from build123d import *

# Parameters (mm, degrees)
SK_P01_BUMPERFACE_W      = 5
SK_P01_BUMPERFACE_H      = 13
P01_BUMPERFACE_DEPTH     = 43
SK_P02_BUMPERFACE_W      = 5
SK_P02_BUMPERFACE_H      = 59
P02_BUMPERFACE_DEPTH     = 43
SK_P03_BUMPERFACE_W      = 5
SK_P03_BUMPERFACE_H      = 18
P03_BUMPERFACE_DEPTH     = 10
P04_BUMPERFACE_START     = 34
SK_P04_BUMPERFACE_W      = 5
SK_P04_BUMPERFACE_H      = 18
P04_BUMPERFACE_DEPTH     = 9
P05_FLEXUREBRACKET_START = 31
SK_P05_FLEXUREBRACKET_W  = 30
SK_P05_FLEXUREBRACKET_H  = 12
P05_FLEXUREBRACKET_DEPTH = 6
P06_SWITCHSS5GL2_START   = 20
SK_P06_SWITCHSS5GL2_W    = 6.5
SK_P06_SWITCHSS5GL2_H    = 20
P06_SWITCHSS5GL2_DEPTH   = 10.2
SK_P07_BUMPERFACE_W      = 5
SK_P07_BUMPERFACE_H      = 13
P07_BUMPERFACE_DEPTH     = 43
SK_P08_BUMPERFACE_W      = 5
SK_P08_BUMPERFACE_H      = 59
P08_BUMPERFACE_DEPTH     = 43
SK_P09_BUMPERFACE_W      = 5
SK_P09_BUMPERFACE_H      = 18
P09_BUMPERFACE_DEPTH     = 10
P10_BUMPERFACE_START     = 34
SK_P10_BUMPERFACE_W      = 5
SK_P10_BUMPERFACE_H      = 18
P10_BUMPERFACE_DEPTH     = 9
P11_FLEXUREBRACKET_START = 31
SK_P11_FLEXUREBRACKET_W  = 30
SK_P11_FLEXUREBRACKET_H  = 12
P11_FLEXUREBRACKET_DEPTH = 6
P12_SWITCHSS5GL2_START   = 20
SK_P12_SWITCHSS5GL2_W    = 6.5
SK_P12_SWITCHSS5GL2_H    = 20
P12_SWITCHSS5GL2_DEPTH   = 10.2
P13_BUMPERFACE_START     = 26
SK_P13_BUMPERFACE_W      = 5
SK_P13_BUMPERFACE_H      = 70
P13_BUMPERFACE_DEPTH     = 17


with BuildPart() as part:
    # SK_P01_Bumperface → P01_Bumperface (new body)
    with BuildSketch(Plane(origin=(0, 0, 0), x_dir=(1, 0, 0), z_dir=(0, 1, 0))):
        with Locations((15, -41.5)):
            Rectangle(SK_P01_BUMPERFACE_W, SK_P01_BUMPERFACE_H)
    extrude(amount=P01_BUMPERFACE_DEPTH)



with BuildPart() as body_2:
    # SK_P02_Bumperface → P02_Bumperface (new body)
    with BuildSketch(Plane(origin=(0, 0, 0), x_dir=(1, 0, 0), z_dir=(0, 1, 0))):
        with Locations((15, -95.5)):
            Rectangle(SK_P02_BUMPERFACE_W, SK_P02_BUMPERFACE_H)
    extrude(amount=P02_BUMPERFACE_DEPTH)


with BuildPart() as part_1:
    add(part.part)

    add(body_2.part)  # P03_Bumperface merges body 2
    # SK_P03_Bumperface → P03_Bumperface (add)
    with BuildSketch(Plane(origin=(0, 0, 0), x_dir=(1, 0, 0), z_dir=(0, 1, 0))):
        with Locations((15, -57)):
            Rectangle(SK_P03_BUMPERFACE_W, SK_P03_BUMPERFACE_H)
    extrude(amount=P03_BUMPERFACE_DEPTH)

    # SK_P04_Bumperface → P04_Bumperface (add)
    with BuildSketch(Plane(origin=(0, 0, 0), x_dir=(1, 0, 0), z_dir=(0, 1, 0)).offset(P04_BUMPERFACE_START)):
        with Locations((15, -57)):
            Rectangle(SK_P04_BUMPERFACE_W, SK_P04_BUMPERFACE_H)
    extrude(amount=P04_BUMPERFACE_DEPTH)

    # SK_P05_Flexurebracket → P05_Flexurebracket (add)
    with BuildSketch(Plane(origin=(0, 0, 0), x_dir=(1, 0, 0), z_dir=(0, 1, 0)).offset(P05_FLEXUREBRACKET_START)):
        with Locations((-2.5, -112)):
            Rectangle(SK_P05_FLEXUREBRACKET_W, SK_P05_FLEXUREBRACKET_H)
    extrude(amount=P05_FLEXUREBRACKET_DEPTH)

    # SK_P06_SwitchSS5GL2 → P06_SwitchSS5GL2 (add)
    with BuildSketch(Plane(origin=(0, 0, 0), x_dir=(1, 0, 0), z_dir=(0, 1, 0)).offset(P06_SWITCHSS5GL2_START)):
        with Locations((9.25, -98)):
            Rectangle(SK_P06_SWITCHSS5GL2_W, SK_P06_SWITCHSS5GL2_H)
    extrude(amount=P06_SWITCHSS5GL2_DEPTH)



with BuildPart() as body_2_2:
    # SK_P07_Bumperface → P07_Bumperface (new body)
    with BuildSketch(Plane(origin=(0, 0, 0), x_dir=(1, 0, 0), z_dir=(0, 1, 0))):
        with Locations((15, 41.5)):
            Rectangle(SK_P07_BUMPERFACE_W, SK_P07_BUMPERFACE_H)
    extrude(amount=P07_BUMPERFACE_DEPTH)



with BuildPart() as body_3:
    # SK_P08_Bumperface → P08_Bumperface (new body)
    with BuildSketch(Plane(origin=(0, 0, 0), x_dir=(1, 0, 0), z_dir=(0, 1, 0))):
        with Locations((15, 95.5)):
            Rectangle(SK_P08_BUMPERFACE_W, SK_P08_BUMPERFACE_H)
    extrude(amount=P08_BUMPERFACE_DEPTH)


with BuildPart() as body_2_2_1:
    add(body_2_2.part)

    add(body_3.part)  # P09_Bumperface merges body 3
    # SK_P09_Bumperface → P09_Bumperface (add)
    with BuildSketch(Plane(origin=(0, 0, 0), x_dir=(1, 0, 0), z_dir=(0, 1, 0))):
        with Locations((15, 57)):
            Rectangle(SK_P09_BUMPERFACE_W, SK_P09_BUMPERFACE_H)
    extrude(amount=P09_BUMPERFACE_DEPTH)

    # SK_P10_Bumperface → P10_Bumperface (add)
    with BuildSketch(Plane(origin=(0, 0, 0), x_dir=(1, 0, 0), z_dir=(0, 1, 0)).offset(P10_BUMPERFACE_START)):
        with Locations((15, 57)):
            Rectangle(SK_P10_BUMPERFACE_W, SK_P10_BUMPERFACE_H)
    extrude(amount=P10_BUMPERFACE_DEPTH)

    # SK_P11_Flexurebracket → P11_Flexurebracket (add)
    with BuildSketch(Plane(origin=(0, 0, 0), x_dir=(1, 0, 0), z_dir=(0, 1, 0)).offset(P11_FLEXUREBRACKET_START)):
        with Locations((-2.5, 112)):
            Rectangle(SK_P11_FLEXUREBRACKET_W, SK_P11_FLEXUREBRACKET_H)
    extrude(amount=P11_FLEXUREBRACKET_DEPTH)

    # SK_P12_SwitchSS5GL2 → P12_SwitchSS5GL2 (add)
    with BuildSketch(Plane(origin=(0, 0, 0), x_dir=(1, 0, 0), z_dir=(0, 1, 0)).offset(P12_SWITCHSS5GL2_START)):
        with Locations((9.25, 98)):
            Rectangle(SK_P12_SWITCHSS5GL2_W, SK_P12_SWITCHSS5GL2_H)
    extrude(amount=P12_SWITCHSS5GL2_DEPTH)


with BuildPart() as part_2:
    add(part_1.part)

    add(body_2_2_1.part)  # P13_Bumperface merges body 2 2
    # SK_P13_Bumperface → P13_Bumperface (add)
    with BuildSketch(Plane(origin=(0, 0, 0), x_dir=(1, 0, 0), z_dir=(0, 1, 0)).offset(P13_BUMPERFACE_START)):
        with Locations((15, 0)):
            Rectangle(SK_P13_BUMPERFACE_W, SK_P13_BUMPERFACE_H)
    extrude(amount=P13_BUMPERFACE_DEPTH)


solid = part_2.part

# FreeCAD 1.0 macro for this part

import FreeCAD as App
import Part
import Sketcher
from FreeCAD import Vector
Q = App.Units.Quantity

doc = App.newDocument("Part")
body = doc.addObject("PartDesign::Body", "Body")

# Sketch on XZ plane
sketch1 = doc.addObject("Sketcher::SketchObject", "Sketch")
body.addObject(sketch1)
sketch1.AttachmentSupport = (doc.XZ_Plane, [""])
sketch1.MapMode = "FlatFace"
sketch1.addGeometry([
    Part.LineSegment(Vector(12, 35, 0), Vector(12, 48, 0)),
    Part.LineSegment(Vector(12, 48, 0), Vector(18, 48, 0)),
    Part.LineSegment(Vector(18, 48, 0), Vector(18, 35, 0)),
    Part.LineSegment(Vector(18, 35, 0), Vector(12, 35, 0)),
], False)
sketch1.addConstraint([
    Sketcher.Constraint("Coincident", 0, 2, 1, 1),
    Sketcher.Constraint("Coincident", 1, 2, 2, 1),
    Sketcher.Constraint("Coincident", 2, 2, 3, 1),
    Sketcher.Constraint("Coincident", 3, 2, 0, 1),
    Sketcher.Constraint("Vertical", 0),
    Sketcher.Constraint("Horizontal", 1),
    Sketcher.Constraint("Vertical", 2),
    Sketcher.Constraint("Horizontal", 3),
    Sketcher.Constraint("DistanceX", 1, 1, 1, 2, Q("5 mm")),
    Sketcher.Constraint("DistanceY", 0, 1, 0, 2, Q("13 mm")),
    Sketcher.Constraint("DistanceY", -1, 1, 0, 2, Q("48 mm")),
    Sketcher.Constraint("DistanceX", -1, 1, 0, 2, Q("12.5 mm")),
])
pad1 = doc.addObject("PartDesign::Pad", "Pad")
body.addObject(pad1)
pad1.Profile = sketch1
pad1.Length = 43
pad1.Reversed = True
body2 = doc.addObject("PartDesign::Body", "Body001")

# Sketch on XZ plane
sketch2 = doc.addObject("Sketcher::SketchObject", "Sketch001")
body2.addObject(sketch2)
sketch2.AttachmentSupport = (doc.getObject("XZ_Plane001"), [""])
sketch2.MapMode = "FlatFace"
sketch2.addGeometry([
    Part.LineSegment(Vector(12, 66, 0), Vector(12, 125, 0)),
    Part.LineSegment(Vector(12, 125, 0), Vector(18, 125, 0)),
    Part.LineSegment(Vector(18, 125, 0), Vector(18, 66, 0)),
    Part.LineSegment(Vector(18, 66, 0), Vector(12, 66, 0)),
], False)
sketch2.addConstraint([
    Sketcher.Constraint("Coincident", 0, 2, 1, 1),
    Sketcher.Constraint("Coincident", 1, 2, 2, 1),
    Sketcher.Constraint("Coincident", 2, 2, 3, 1),
    Sketcher.Constraint("Coincident", 3, 2, 0, 1),
    Sketcher.Constraint("Vertical", 0),
    Sketcher.Constraint("Horizontal", 1),
    Sketcher.Constraint("Vertical", 2),
    Sketcher.Constraint("Horizontal", 3),
    Sketcher.Constraint("DistanceX", 1, 1, 1, 2, Q("5 mm")),
    Sketcher.Constraint("DistanceY", 0, 1, 0, 2, Q("59 mm")),
    Sketcher.Constraint("DistanceY", -1, 1, 0, 2, Q("125 mm")),
    Sketcher.Constraint("DistanceX", -1, 1, 0, 2, Q("12.5 mm")),
])
pad2 = doc.addObject("PartDesign::Pad", "Pad001")
body2.addObject(pad2)
pad2.Profile = sketch2
pad2.Length = 43
pad2.Reversed = True
body.AllowCompound = True
doc.recompute()

boolean = doc.addObject("PartDesign::Boolean", "Boolean")
body.addObject(boolean)
boolean.Type = "Fuse"
boolean.addObjects([body2])

# Sketch on XZ plane
sketch3 = doc.addObject("Sketcher::SketchObject", "Sketch002")
body.addObject(sketch3)
sketch3.AttachmentSupport = (doc.XZ_Plane, [""])
sketch3.MapMode = "FlatFace"
sketch3.addGeometry([
    Part.LineSegment(Vector(12, 48, 0), Vector(12, 66, 0)),
    Part.LineSegment(Vector(12, 66, 0), Vector(18, 66, 0)),
    Part.LineSegment(Vector(18, 66, 0), Vector(18, 48, 0)),
    Part.LineSegment(Vector(18, 48, 0), Vector(12, 48, 0)),
], False)
sketch3.addConstraint([
    Sketcher.Constraint("Coincident", 0, 2, 1, 1),
    Sketcher.Constraint("Coincident", 1, 2, 2, 1),
    Sketcher.Constraint("Coincident", 2, 2, 3, 1),
    Sketcher.Constraint("Coincident", 3, 2, 0, 1),
    Sketcher.Constraint("Vertical", 0),
    Sketcher.Constraint("Horizontal", 1),
    Sketcher.Constraint("Vertical", 2),
    Sketcher.Constraint("Horizontal", 3),
    Sketcher.Constraint("DistanceX", 1, 1, 1, 2, Q("5 mm")),
    Sketcher.Constraint("DistanceY", 0, 1, 0, 2, Q("18 mm")),
    Sketcher.Constraint("DistanceY", -1, 1, 0, 2, Q("66 mm")),
    Sketcher.Constraint("DistanceX", -1, 1, 0, 2, Q("12.5 mm")),
])
pad3 = doc.addObject("PartDesign::Pad", "Pad002")
body.addObject(pad3)
pad3.Profile = sketch3
pad3.Length = 10
pad3.Reversed = True

# Sketch on XZ plane
sketch4 = doc.addObject("Sketcher::SketchObject", "Sketch003")
body.addObject(sketch4)
sketch4.AttachmentSupport = (doc.XZ_Plane, [""])
sketch4.MapMode = "FlatFace"
sketch4.AttachmentOffset = App.Placement(Vector(0, 0, -34), App.Rotation())
sketch4.addGeometry([
    Part.LineSegment(Vector(12, 48, 0), Vector(12, 66, 0)),
    Part.LineSegment(Vector(12, 66, 0), Vector(18, 66, 0)),
    Part.LineSegment(Vector(18, 66, 0), Vector(18, 48, 0)),
    Part.LineSegment(Vector(18, 48, 0), Vector(12, 48, 0)),
], False)
sketch4.addConstraint([
    Sketcher.Constraint("Coincident", 0, 2, 1, 1),
    Sketcher.Constraint("Coincident", 1, 2, 2, 1),
    Sketcher.Constraint("Coincident", 2, 2, 3, 1),
    Sketcher.Constraint("Coincident", 3, 2, 0, 1),
    Sketcher.Constraint("Vertical", 0),
    Sketcher.Constraint("Horizontal", 1),
    Sketcher.Constraint("Vertical", 2),
    Sketcher.Constraint("Horizontal", 3),
    Sketcher.Constraint("DistanceX", 1, 1, 1, 2, Q("5 mm")),
    Sketcher.Constraint("DistanceY", 0, 1, 0, 2, Q("18 mm")),
    Sketcher.Constraint("DistanceY", -1, 1, 0, 2, Q("66 mm")),
    Sketcher.Constraint("DistanceX", -1, 1, 0, 2, Q("12.5 mm")),
])
pad4 = doc.addObject("PartDesign::Pad", "Pad003")
body.addObject(pad4)
pad4.Profile = sketch4
pad4.Length = 9
pad4.Reversed = True

# Sketch on XZ plane
sketch5 = doc.addObject("Sketcher::SketchObject", "Sketch004")
body.addObject(sketch5)
sketch5.AttachmentSupport = (doc.XZ_Plane, [""])
sketch5.MapMode = "FlatFace"
sketch5.AttachmentOffset = App.Placement(Vector(0, 0, -31), App.Rotation())
sketch5.addGeometry([
    Part.LineSegment(Vector(-18, 106, 0), Vector(-18, 118, 0)),
    Part.LineSegment(Vector(-18, 118, 0), Vector(12, 118, 0)),
    Part.LineSegment(Vector(12, 118, 0), Vector(12, 106, 0)),
    Part.LineSegment(Vector(12, 106, 0), Vector(-18, 106, 0)),
], False)
sketch5.addConstraint([
    Sketcher.Constraint("Coincident", 0, 2, 1, 1),
    Sketcher.Constraint("Coincident", 1, 2, 2, 1),
    Sketcher.Constraint("Coincident", 2, 2, 3, 1),
    Sketcher.Constraint("Coincident", 3, 2, 0, 1),
    Sketcher.Constraint("Vertical", 0),
    Sketcher.Constraint("Horizontal", 1),
    Sketcher.Constraint("Vertical", 2),
    Sketcher.Constraint("Horizontal", 3),
    Sketcher.Constraint("DistanceX", 1, 1, 1, 2, Q("30 mm")),
    Sketcher.Constraint("DistanceY", 0, 1, 0, 2, Q("12 mm")),
    Sketcher.Constraint("DistanceY", -1, 1, 0, 2, Q("118 mm")),
    Sketcher.Constraint("DistanceX", 0, 2, -1, 1, Q("17.5 mm")),
])
pad5 = doc.addObject("PartDesign::Pad", "Pad004")
body.addObject(pad5)
pad5.Profile = sketch5
pad5.Length = 6
pad5.Reversed = True

# Sketch on XZ plane
sketch6 = doc.addObject("Sketcher::SketchObject", "Sketch005")
body.addObject(sketch6)
sketch6.AttachmentSupport = (doc.XZ_Plane, [""])
sketch6.MapMode = "FlatFace"
sketch6.AttachmentOffset = App.Placement(Vector(0, 0, -20), App.Rotation())
sketch6.addGeometry([
    Part.LineSegment(Vector(6, 88, 0), Vector(6, 108, 0)),
    Part.LineSegment(Vector(6, 108, 0), Vector(12, 108, 0)),
    Part.LineSegment(Vector(12, 108, 0), Vector(12, 88, 0)),
    Part.LineSegment(Vector(12, 88, 0), Vector(6, 88, 0)),
], False)
sketch6.addConstraint([
    Sketcher.Constraint("Coincident", 0, 2, 1, 1),
    Sketcher.Constraint("Coincident", 1, 2, 2, 1),
    Sketcher.Constraint("Coincident", 2, 2, 3, 1),
    Sketcher.Constraint("Coincident", 3, 2, 0, 1),
    Sketcher.Constraint("Vertical", 0),
    Sketcher.Constraint("Horizontal", 1),
    Sketcher.Constraint("Vertical", 2),
    Sketcher.Constraint("Horizontal", 3),
    Sketcher.Constraint("DistanceY", 0, 1, 0, 2, Q("20 mm")),
    Sketcher.Constraint("DistanceX", 1, 1, 1, 2, Q("6.5 mm")),
    Sketcher.Constraint("DistanceX", -1, 1, 0, 2, Q("6 mm")),
    Sketcher.Constraint("DistanceY", -1, 1, 0, 2, Q("108 mm")),
])
pad6 = doc.addObject("PartDesign::Pad", "Pad005")
body.addObject(pad6)
pad6.Profile = sketch6
pad6.Length = 10.2
pad6.Reversed = True
body3 = doc.addObject("PartDesign::Body", "Body002")

# Sketch on XZ plane
sketch7 = doc.addObject("Sketcher::SketchObject", "Sketch006")
body3.addObject(sketch7)
sketch7.AttachmentSupport = (doc.getObject("XZ_Plane002"), [""])
sketch7.MapMode = "FlatFace"
sketch7.addGeometry([
    Part.LineSegment(Vector(12, -48, 0), Vector(12, -35, 0)),
    Part.LineSegment(Vector(12, -35, 0), Vector(18, -35, 0)),
    Part.LineSegment(Vector(18, -35, 0), Vector(18, -48, 0)),
    Part.LineSegment(Vector(18, -48, 0), Vector(12, -48, 0)),
], False)
sketch7.addConstraint([
    Sketcher.Constraint("Coincident", 0, 2, 1, 1),
    Sketcher.Constraint("Coincident", 1, 2, 2, 1),
    Sketcher.Constraint("Coincident", 2, 2, 3, 1),
    Sketcher.Constraint("Coincident", 3, 2, 0, 1),
    Sketcher.Constraint("Vertical", 0),
    Sketcher.Constraint("Horizontal", 1),
    Sketcher.Constraint("Vertical", 2),
    Sketcher.Constraint("Horizontal", 3),
    Sketcher.Constraint("DistanceX", 1, 1, 1, 2, Q("5 mm")),
    Sketcher.Constraint("DistanceY", 0, 1, 0, 2, Q("13 mm")),
    Sketcher.Constraint("DistanceY", 0, 2, -1, 1, Q("35 mm")),
    Sketcher.Constraint("DistanceX", -1, 1, 0, 2, Q("12.5 mm")),
])
pad7 = doc.addObject("PartDesign::Pad", "Pad006")
body3.addObject(pad7)
pad7.Profile = sketch7
pad7.Length = 43
pad7.Reversed = True
body4 = doc.addObject("PartDesign::Body", "Body003")

# Sketch on XZ plane
sketch8 = doc.addObject("Sketcher::SketchObject", "Sketch007")
body4.addObject(sketch8)
sketch8.AttachmentSupport = (doc.getObject("XZ_Plane003"), [""])
sketch8.MapMode = "FlatFace"
sketch8.addGeometry([
    Part.LineSegment(Vector(12, -125, 0), Vector(12, -66, 0)),
    Part.LineSegment(Vector(12, -66, 0), Vector(18, -66, 0)),
    Part.LineSegment(Vector(18, -66, 0), Vector(18, -125, 0)),
    Part.LineSegment(Vector(18, -125, 0), Vector(12, -125, 0)),
], False)
sketch8.addConstraint([
    Sketcher.Constraint("Coincident", 0, 2, 1, 1),
    Sketcher.Constraint("Coincident", 1, 2, 2, 1),
    Sketcher.Constraint("Coincident", 2, 2, 3, 1),
    Sketcher.Constraint("Coincident", 3, 2, 0, 1),
    Sketcher.Constraint("Vertical", 0),
    Sketcher.Constraint("Horizontal", 1),
    Sketcher.Constraint("Vertical", 2),
    Sketcher.Constraint("Horizontal", 3),
    Sketcher.Constraint("DistanceX", 1, 1, 1, 2, Q("5 mm")),
    Sketcher.Constraint("DistanceY", 0, 1, 0, 2, Q("59 mm")),
    Sketcher.Constraint("DistanceY", 0, 2, -1, 1, Q("66 mm")),
    Sketcher.Constraint("DistanceX", -1, 1, 0, 2, Q("12.5 mm")),
])
pad8 = doc.addObject("PartDesign::Pad", "Pad007")
body4.addObject(pad8)
pad8.Profile = sketch8
pad8.Length = 43
pad8.Reversed = True
body3.AllowCompound = True
doc.recompute()

boolean2 = doc.addObject("PartDesign::Boolean", "Boolean001")
body3.addObject(boolean2)
boolean2.Type = "Fuse"
boolean2.addObjects([body4])

# Sketch on XZ plane
sketch9 = doc.addObject("Sketcher::SketchObject", "Sketch008")
body3.addObject(sketch9)
sketch9.AttachmentSupport = (doc.getObject("XZ_Plane002"), [""])
sketch9.MapMode = "FlatFace"
sketch9.addGeometry([
    Part.LineSegment(Vector(12, -66, 0), Vector(12, -48, 0)),
    Part.LineSegment(Vector(12, -48, 0), Vector(18, -48, 0)),
    Part.LineSegment(Vector(18, -48, 0), Vector(18, -66, 0)),
    Part.LineSegment(Vector(18, -66, 0), Vector(12, -66, 0)),
], False)
sketch9.addConstraint([
    Sketcher.Constraint("Coincident", 0, 2, 1, 1),
    Sketcher.Constraint("Coincident", 1, 2, 2, 1),
    Sketcher.Constraint("Coincident", 2, 2, 3, 1),
    Sketcher.Constraint("Coincident", 3, 2, 0, 1),
    Sketcher.Constraint("Vertical", 0),
    Sketcher.Constraint("Horizontal", 1),
    Sketcher.Constraint("Vertical", 2),
    Sketcher.Constraint("Horizontal", 3),
    Sketcher.Constraint("DistanceX", 1, 1, 1, 2, Q("5 mm")),
    Sketcher.Constraint("DistanceY", 0, 1, 0, 2, Q("18 mm")),
    Sketcher.Constraint("DistanceY", 0, 2, -1, 1, Q("48 mm")),
    Sketcher.Constraint("DistanceX", -1, 1, 0, 2, Q("12.5 mm")),
])
pad9 = doc.addObject("PartDesign::Pad", "Pad008")
body3.addObject(pad9)
pad9.Profile = sketch9
pad9.Length = 10
pad9.Reversed = True

# Sketch on XZ plane
sketch10 = doc.addObject("Sketcher::SketchObject", "Sketch009")
body3.addObject(sketch10)
sketch10.AttachmentSupport = (doc.getObject("XZ_Plane002"), [""])
sketch10.MapMode = "FlatFace"
sketch10.AttachmentOffset = App.Placement(Vector(0, 0, -34), App.Rotation())
sketch10.addGeometry([
    Part.LineSegment(Vector(12, -66, 0), Vector(12, -48, 0)),
    Part.LineSegment(Vector(12, -48, 0), Vector(18, -48, 0)),
    Part.LineSegment(Vector(18, -48, 0), Vector(18, -66, 0)),
    Part.LineSegment(Vector(18, -66, 0), Vector(12, -66, 0)),
], False)
sketch10.addConstraint([
    Sketcher.Constraint("Coincident", 0, 2, 1, 1),
    Sketcher.Constraint("Coincident", 1, 2, 2, 1),
    Sketcher.Constraint("Coincident", 2, 2, 3, 1),
    Sketcher.Constraint("Coincident", 3, 2, 0, 1),
    Sketcher.Constraint("Vertical", 0),
    Sketcher.Constraint("Horizontal", 1),
    Sketcher.Constraint("Vertical", 2),
    Sketcher.Constraint("Horizontal", 3),
    Sketcher.Constraint("DistanceX", 1, 1, 1, 2, Q("5 mm")),
    Sketcher.Constraint("DistanceY", 0, 1, 0, 2, Q("18 mm")),
    Sketcher.Constraint("DistanceY", 0, 2, -1, 1, Q("48 mm")),
    Sketcher.Constraint("DistanceX", -1, 1, 0, 2, Q("12.5 mm")),
])
pad10 = doc.addObject("PartDesign::Pad", "Pad009")
body3.addObject(pad10)
pad10.Profile = sketch10
pad10.Length = 9
pad10.Reversed = True

# Sketch on XZ plane
sketch11 = doc.addObject("Sketcher::SketchObject", "Sketch010")
body3.addObject(sketch11)
sketch11.AttachmentSupport = (doc.getObject("XZ_Plane002"), [""])
sketch11.MapMode = "FlatFace"
sketch11.AttachmentOffset = App.Placement(Vector(0, 0, -31), App.Rotation())
sketch11.addGeometry([
    Part.LineSegment(Vector(-18, -118, 0), Vector(-18, -106, 0)),
    Part.LineSegment(Vector(-18, -106, 0), Vector(12, -106, 0)),
    Part.LineSegment(Vector(12, -106, 0), Vector(12, -118, 0)),
    Part.LineSegment(Vector(12, -118, 0), Vector(-18, -118, 0)),
], False)
sketch11.addConstraint([
    Sketcher.Constraint("Coincident", 0, 2, 1, 1),
    Sketcher.Constraint("Coincident", 1, 2, 2, 1),
    Sketcher.Constraint("Coincident", 2, 2, 3, 1),
    Sketcher.Constraint("Coincident", 3, 2, 0, 1),
    Sketcher.Constraint("Vertical", 0),
    Sketcher.Constraint("Horizontal", 1),
    Sketcher.Constraint("Vertical", 2),
    Sketcher.Constraint("Horizontal", 3),
    Sketcher.Constraint("DistanceX", 1, 1, 1, 2, Q("30 mm")),
    Sketcher.Constraint("DistanceY", 0, 1, 0, 2, Q("12 mm")),
    Sketcher.Constraint("DistanceY", 0, 2, -1, 1, Q("106 mm")),
    Sketcher.Constraint("DistanceX", 0, 2, -1, 1, Q("17.5 mm")),
])
pad11 = doc.addObject("PartDesign::Pad", "Pad010")
body3.addObject(pad11)
pad11.Profile = sketch11
pad11.Length = 6
pad11.Reversed = True

# Sketch on XZ plane
sketch12 = doc.addObject("Sketcher::SketchObject", "Sketch011")
body3.addObject(sketch12)
sketch12.AttachmentSupport = (doc.getObject("XZ_Plane002"), [""])
sketch12.MapMode = "FlatFace"
sketch12.AttachmentOffset = App.Placement(Vector(0, 0, -20), App.Rotation())
sketch12.addGeometry([
    Part.LineSegment(Vector(6, -108, 0), Vector(6, -88, 0)),
    Part.LineSegment(Vector(6, -88, 0), Vector(12, -88, 0)),
    Part.LineSegment(Vector(12, -88, 0), Vector(12, -108, 0)),
    Part.LineSegment(Vector(12, -108, 0), Vector(6, -108, 0)),
], False)
sketch12.addConstraint([
    Sketcher.Constraint("Coincident", 0, 2, 1, 1),
    Sketcher.Constraint("Coincident", 1, 2, 2, 1),
    Sketcher.Constraint("Coincident", 2, 2, 3, 1),
    Sketcher.Constraint("Coincident", 3, 2, 0, 1),
    Sketcher.Constraint("Vertical", 0),
    Sketcher.Constraint("Horizontal", 1),
    Sketcher.Constraint("Vertical", 2),
    Sketcher.Constraint("Horizontal", 3),
    Sketcher.Constraint("DistanceY", 0, 1, 0, 2, Q("20 mm")),
    Sketcher.Constraint("DistanceX", 1, 1, 1, 2, Q("6.5 mm")),
    Sketcher.Constraint("DistanceX", -1, 1, 0, 2, Q("6 mm")),
    Sketcher.Constraint("DistanceY", 0, 2, -1, 1, Q("88 mm")),
])
pad12 = doc.addObject("PartDesign::Pad", "Pad011")
body3.addObject(pad12)
pad12.Profile = sketch12
pad12.Length = 10.2
pad12.Reversed = True
body.AllowCompound = True
doc.recompute()

boolean3 = doc.addObject("PartDesign::Boolean", "Boolean002")
body.addObject(boolean3)
boolean3.Type = "Fuse"
boolean3.addObjects([body3])

# Sketch on XZ plane
sketch13 = doc.addObject("Sketcher::SketchObject", "Sketch012")
body.addObject(sketch13)
sketch13.AttachmentSupport = (doc.XZ_Plane, [""])
sketch13.MapMode = "FlatFace"
sketch13.AttachmentOffset = App.Placement(Vector(0, 0, -26), App.Rotation())
sketch13.addGeometry([
    Part.LineSegment(Vector(12, -35, 0), Vector(12, 35, 0)),
    Part.LineSegment(Vector(12, 35, 0), Vector(18, 35, 0)),
    Part.LineSegment(Vector(18, 35, 0), Vector(18, -35, 0)),
    Part.LineSegment(Vector(18, -35, 0), Vector(12, -35, 0)),
], False)
sketch13.addConstraint([
    Sketcher.Constraint("Coincident", 0, 2, 1, 1),
    Sketcher.Constraint("Coincident", 1, 2, 2, 1),
    Sketcher.Constraint("Coincident", 2, 2, 3, 1),
    Sketcher.Constraint("Coincident", 3, 2, 0, 1),
    Sketcher.Constraint("Vertical", 0),
    Sketcher.Constraint("Horizontal", 1),
    Sketcher.Constraint("Vertical", 2),
    Sketcher.Constraint("Horizontal", 3),
    Sketcher.Constraint("DistanceX", 1, 1, 1, 2, Q("5 mm")),
    Sketcher.Constraint("DistanceY", 0, 1, 0, 2, Q("70 mm")),
    Sketcher.Constraint("DistanceY", -1, 1, 0, 2, Q("35 mm")),
    Sketcher.Constraint("DistanceX", -1, 1, 0, 2, Q("12.5 mm")),
])
pad13 = doc.addObject("PartDesign::Pad", "Pad012")
body.addObject(pad13)
pad13.Profile = sketch13
pad13.Length = 17
pad13.Reversed = True

doc.recompute()
